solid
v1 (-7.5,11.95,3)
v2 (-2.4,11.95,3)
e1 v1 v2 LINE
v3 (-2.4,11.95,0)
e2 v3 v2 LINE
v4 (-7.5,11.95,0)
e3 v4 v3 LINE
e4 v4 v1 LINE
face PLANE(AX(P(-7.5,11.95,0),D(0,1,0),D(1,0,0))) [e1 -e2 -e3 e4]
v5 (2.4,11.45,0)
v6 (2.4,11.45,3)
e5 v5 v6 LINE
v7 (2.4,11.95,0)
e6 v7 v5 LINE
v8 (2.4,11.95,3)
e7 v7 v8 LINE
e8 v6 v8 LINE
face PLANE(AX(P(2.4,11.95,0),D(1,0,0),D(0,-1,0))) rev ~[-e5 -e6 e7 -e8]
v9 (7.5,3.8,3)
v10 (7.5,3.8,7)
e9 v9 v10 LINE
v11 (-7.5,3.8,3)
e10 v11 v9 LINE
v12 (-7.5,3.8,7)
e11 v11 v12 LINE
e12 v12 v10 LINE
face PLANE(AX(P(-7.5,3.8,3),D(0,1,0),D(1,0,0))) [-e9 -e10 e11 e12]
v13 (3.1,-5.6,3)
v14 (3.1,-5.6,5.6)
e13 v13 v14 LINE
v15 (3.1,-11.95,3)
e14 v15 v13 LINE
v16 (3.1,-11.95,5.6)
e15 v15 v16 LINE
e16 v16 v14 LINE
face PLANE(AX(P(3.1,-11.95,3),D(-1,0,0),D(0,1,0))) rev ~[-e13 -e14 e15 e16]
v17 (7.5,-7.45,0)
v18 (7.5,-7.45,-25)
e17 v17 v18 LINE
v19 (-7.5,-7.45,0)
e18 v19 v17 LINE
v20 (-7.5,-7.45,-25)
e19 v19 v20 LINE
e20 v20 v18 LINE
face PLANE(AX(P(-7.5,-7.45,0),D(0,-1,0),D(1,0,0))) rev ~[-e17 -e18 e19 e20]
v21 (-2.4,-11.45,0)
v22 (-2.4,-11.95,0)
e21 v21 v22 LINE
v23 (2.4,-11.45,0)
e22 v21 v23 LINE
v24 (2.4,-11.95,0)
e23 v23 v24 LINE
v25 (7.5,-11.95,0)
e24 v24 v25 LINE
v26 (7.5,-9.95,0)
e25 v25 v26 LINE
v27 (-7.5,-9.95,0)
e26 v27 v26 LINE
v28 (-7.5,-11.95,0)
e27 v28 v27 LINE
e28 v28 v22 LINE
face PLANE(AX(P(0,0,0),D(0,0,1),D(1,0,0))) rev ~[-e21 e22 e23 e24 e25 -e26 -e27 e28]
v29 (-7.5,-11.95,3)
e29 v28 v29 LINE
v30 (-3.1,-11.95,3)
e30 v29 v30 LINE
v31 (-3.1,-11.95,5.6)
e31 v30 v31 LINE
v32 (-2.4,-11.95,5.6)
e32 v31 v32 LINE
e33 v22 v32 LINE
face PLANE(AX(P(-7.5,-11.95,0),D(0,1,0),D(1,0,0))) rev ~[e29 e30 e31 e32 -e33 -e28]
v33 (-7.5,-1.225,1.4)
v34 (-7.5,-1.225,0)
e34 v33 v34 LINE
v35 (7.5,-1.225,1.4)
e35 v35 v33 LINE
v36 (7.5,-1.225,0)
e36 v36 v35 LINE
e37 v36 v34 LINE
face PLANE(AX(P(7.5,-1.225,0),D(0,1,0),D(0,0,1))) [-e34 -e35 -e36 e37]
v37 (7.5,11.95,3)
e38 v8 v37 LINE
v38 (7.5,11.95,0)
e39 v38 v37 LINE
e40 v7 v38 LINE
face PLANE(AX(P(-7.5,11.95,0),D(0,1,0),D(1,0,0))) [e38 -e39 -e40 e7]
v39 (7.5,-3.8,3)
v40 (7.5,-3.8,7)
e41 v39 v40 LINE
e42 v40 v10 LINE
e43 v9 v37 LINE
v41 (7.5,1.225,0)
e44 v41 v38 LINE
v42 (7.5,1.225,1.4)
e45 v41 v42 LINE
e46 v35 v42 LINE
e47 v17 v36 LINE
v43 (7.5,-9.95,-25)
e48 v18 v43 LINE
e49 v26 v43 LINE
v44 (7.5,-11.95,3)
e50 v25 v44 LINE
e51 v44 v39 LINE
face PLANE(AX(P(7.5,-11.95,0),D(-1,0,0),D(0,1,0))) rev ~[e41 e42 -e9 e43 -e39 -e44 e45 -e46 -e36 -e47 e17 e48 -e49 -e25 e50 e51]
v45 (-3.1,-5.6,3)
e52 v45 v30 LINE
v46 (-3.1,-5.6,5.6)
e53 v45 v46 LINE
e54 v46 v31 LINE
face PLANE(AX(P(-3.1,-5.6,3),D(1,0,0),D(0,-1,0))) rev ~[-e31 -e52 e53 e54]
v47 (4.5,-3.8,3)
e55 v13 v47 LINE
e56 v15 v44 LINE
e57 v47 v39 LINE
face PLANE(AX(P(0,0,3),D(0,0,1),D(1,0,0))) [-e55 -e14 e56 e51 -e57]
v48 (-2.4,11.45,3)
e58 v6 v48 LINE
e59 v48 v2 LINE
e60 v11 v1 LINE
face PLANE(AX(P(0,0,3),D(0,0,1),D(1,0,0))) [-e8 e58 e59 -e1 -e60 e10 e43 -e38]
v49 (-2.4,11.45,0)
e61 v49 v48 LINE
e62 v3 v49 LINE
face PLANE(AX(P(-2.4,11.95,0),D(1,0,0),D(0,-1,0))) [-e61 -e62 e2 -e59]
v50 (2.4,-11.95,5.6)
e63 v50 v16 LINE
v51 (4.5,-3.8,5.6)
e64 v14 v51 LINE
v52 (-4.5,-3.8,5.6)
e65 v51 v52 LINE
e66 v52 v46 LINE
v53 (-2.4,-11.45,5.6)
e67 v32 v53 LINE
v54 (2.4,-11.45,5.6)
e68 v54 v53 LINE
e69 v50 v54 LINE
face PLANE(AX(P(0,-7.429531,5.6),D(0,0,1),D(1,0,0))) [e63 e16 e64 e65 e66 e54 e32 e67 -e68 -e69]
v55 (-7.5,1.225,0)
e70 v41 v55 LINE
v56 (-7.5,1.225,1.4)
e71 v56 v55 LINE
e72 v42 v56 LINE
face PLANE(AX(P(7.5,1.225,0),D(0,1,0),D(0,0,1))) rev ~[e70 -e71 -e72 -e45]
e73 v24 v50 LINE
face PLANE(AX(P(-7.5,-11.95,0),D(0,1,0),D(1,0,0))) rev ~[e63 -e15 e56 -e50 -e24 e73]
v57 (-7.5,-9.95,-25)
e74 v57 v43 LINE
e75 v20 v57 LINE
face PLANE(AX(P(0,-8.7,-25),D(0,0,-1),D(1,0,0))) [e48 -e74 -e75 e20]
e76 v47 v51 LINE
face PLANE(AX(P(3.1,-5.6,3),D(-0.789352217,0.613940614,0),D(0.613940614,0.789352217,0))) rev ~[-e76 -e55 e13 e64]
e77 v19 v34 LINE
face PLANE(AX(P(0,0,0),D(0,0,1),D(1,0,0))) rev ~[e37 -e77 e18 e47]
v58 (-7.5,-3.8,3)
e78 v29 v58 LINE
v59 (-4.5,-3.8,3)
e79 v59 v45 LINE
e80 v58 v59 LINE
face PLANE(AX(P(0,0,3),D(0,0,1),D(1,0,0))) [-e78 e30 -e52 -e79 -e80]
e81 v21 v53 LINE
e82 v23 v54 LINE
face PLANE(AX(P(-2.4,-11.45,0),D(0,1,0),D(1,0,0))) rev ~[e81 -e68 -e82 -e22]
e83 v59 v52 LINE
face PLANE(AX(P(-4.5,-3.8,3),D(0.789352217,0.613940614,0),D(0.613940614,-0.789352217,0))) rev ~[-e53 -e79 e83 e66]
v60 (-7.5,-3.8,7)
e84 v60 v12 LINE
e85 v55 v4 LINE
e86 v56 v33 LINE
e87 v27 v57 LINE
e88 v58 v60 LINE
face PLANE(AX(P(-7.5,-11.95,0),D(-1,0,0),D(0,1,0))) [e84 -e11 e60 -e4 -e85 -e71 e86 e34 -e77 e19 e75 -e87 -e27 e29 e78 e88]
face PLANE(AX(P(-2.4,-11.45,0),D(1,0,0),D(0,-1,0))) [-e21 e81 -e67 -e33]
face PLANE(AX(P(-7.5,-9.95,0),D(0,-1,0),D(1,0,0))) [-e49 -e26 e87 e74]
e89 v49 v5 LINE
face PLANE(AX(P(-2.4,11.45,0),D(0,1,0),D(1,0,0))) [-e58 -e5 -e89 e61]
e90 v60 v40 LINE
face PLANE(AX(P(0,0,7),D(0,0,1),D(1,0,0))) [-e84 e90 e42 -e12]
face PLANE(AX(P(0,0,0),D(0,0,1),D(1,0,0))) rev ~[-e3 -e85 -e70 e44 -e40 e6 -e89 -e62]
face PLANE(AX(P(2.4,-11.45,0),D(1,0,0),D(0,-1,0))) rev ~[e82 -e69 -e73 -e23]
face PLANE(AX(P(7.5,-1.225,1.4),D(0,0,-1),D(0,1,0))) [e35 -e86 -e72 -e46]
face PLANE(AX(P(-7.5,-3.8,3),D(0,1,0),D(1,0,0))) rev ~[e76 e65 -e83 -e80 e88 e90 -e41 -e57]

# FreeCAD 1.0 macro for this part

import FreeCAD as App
import Part
import Sketcher
from FreeCAD import Vector
Q = App.Units.Quantity


def add_polygon(sketch, points):
    """Adds a closed chain of lines whose ends are joined by coincident constraints."""
    first, n = sketch.GeometryCount, len(points)
    for a, b in zip(points, points[1:] + points[:1]):
        sketch.addGeometry(Part.LineSegment(App.Vector(*a, 0), App.Vector(*b, 0)), False)
    for i in range(n):
        sketch.addConstraint(Sketcher.Constraint("Coincident", first + i, 2, first + (i + 1) % n, 1))

doc = App.newDocument("Part")
body = doc.addObject("PartDesign::Body", "Body")

# Sketch on XY plane
sketch1 = body.newObject("Sketcher::SketchObject", "Sketch")
sketch1.AttachmentSupport = (doc.getObject("XY_Plane"), [""])
sketch1.MapMode = "FlatFace"
add_polygon(sketch1, [(-8, 12), (-8, -12), (8, -12), (8, 12)])  # lines 0-3
sketch1.addConstraint([
    Sketcher.Constraint("Vertical", 0),
    Sketcher.Constraint("Horizontal", 1),
    Sketcher.Constraint("Vertical", 2),
    Sketcher.Constraint("Horizontal", 3),
    Sketcher.Constraint("Symmetric", 0, 2, 2, 2, -1, 1),
    Sketcher.Constraint("DistanceX", 1, 1, 1, 2, Q("15 mm")),
    Sketcher.Constraint("DistanceY", 0, 2, 0, 1, Q("23.9 mm")),
])
pad1 = body.newObject("PartDesign::Pad", "Pad")
pad1.Profile = sketch1
pad1.Length = 3

# Sketch on XY plane
sketch2 = body.newObject("Sketcher::SketchObject", "Sketch001")
sketch2.AttachmentSupport = (doc.getObject("XY_Plane"), [""])
sketch2.MapMode = "FlatFace"
sketch2.AttachmentOffset = App.Placement(Vector(0, 0, 3), App.Rotation())
add_polygon(sketch2, [(-8, 4), (-8, -4), (8, -4), (8, 4)])  # lines 0-3
sketch2.addConstraint([
    Sketcher.Constraint("Vertical", 0),
    Sketcher.Constraint("Horizontal", 1),
    Sketcher.Constraint("Vertical", 2),
    Sketcher.Constraint("Horizontal", 3),
    Sketcher.Constraint("Symmetric", 0, 2, 2, 2, -1, 1),
    Sketcher.Constraint("DistanceX", 1, 1, 1, 2, Q("15 mm")),
    Sketcher.Constraint("DistanceY", 0, 2, 0, 1, Q("7.6 mm")),
])
pad2 = body.newObject("PartDesign::Pad", "Pad001")
pad2.Profile = sketch2
pad2.Length = 4

# Sketch on XY plane
sketch3 = body.newObject("Sketcher::SketchObject", "Sketch002")
sketch3.AttachmentSupport = (doc.getObject("XY_Plane"), [""])
sketch3.MapMode = "FlatFace"
sketch3.AttachmentOffset = App.Placement(Vector(0, 0, 3), App.Rotation())
add_polygon(sketch3, [(-3.1, -11.9), (3.1, -11.9), (3.1, -5.6), (4.5, -3.8), (-4.5, -3.8), (-3.1, -5.6)])  # lines 0-5
sketch3.addConstraint([
    Sketcher.Constraint("Horizontal", 0),
    Sketcher.Constraint("Vertical", 1),
    Sketcher.Constraint("Horizontal", 3),
    Sketcher.Constraint("Vertical", 5),
    Sketcher.Constraint("Symmetric", 1, 2, 4, 2, -2),
    Sketcher.Constraint("Equal", 2, 4),
    Sketcher.Constraint("DistanceX", 3, 2, 3, 1, Q("9 mm")),
    Sketcher.Constraint("DistanceX", 0, 1, 0, 2, Q("6.2 mm")),
    Sketcher.Constraint("DistanceY", 1, 1, 1, 2, Q("6.35 mm")),
    Sketcher.Constraint("DistanceY", 1, 2, -1, 1, Q("5.6 mm")),
    Sketcher.Constraint("DistanceY", 2, 2, -1, 1, Q("3.8 mm")),
])
pad3 = body.newObject("PartDesign::Pad", "Pad002")
pad3.Profile = sketch3
pad3.Length = 2.6

# Sketch on XY plane
sketch4 = body.newObject("Sketcher::SketchObject", "Sketch003")
sketch4.AttachmentSupport = (doc.getObject("XY_Plane"), [""])
sketch4.MapMode = "FlatFace"
add_polygon(sketch4, [(-2.4, -11.9), (-2.4, -11.4), (2.4, -11.4), (2.4, -11.9)])  # lines 0-3
add_polygon(sketch4, [(-2.4, 11.4), (-2.4, 11.9), (2.4, 11.9), (2.4, 11.4)])  # lines 4-7
sketch4.addConstraint([
    Sketcher.Constraint("Vertical", 0),
    Sketcher.Constraint("Horizontal", 1),
    Sketcher.Constraint("Vertical", 2),
    Sketcher.Constraint("Horizontal", 3),
    Sketcher.Constraint("Vertical", 4),
    Sketcher.Constraint("Horizontal", 5),
    Sketcher.Constraint("Vertical", 6),
    Sketcher.Constraint("Horizontal", 7),
    Sketcher.Constraint("Symmetric", 2, 2, 4, 2, -1, 1),
    Sketcher.Constraint("Symmetric", 0, 2, 6, 2, -1, 1),
    Sketcher.Constraint("Vertical", 3, 2, 4, 2),
    Sketcher.Constraint("DistanceX", 1, 1, 1, 2, Q("4.8 mm")),
    Sketcher.Constraint("DistanceY", 0, 1, 0, 2, Q("0.5 mm")),
    Sketcher.Constraint("DistanceY", 0, 2, 4, 2, Q("23.4 mm")),
])
pocket1 = body.newObject("PartDesign::Pocket", "Pocket")
pocket1.Profile = sketch4
pocket1.Length = 20
pocket1.Reversed = True

# Sketch on YZ plane
sketch5 = body.newObject("Sketcher::SketchObject", "Sketch004")
sketch5.AttachmentSupport = (doc.getObject("YZ_Plane"), [""])
sketch5.MapMode = "FlatFace"
sketch5.AttachmentOffset = App.Placement(Vector(0, 0, 7.5), App.Rotation())
add_polygon(sketch5, [(-1.2, 1.4), (-1.2, 0), (1.2, 0), (1.2, 1.4)])  # lines 0-3
sketch5.addConstraint([
    Sketcher.Constraint("Vertical", 0),
    Sketcher.Constraint("Horizontal", 1),
    Sketcher.Constraint("Vertical", 2),
    Sketcher.Constraint("Horizontal", 3),
    Sketcher.Constraint("Symmetric", 0, 2, 1, 2, -1, 1),
    Sketcher.Constraint("DistanceY", 0, 2, 0, 1, Q("1.4 mm")),
    Sketcher.Constraint("DistanceX", 1, 1, 1, 2, Q("2.45 mm")),
])
pocket2 = body.newObject("PartDesign::Pocket", "Pocket001")
pocket2.Profile = sketch5
pocket2.Length = 20

# Sketch on XY plane
sketch6 = body.newObject("Sketcher::SketchObject", "Sketch005")
sketch6.AttachmentSupport = (doc.getObject("XY_Plane"), [""])
sketch6.MapMode = "FlatFace"
add_polygon(sketch6, [(-7.5, -9.9), (-7.5, -7.5), (7.5, -7.5), (7.5, -9.9)])  # lines 0-3
sketch6.addConstraint([
    Sketcher.Constraint("Vertical", 0),
    Sketcher.Constraint("Horizontal", 1),
    Sketcher.Constraint("Vertical", 2),
    Sketcher.Constraint("Horizontal", 3),
    Sketcher.Constraint("DistanceX", 1, 1, 1, 2, Q("15 mm")),
    Sketcher.Constraint("DistanceY", 0, 1, 0, 2, Q("2.5 mm")),
    Sketcher.Constraint("DistanceX", 0, 2, -1, 1, Q("7.5 mm")),
    Sketcher.Constraint("DistanceY", 0, 2, -1, 1, Q("7.45 mm")),
])
pad4 = body.newObject("PartDesign::Pad", "Pad003")
pad4.Profile = sketch6
pad4.Length = 25
pad4.Reversed = True

doc.recompute()
